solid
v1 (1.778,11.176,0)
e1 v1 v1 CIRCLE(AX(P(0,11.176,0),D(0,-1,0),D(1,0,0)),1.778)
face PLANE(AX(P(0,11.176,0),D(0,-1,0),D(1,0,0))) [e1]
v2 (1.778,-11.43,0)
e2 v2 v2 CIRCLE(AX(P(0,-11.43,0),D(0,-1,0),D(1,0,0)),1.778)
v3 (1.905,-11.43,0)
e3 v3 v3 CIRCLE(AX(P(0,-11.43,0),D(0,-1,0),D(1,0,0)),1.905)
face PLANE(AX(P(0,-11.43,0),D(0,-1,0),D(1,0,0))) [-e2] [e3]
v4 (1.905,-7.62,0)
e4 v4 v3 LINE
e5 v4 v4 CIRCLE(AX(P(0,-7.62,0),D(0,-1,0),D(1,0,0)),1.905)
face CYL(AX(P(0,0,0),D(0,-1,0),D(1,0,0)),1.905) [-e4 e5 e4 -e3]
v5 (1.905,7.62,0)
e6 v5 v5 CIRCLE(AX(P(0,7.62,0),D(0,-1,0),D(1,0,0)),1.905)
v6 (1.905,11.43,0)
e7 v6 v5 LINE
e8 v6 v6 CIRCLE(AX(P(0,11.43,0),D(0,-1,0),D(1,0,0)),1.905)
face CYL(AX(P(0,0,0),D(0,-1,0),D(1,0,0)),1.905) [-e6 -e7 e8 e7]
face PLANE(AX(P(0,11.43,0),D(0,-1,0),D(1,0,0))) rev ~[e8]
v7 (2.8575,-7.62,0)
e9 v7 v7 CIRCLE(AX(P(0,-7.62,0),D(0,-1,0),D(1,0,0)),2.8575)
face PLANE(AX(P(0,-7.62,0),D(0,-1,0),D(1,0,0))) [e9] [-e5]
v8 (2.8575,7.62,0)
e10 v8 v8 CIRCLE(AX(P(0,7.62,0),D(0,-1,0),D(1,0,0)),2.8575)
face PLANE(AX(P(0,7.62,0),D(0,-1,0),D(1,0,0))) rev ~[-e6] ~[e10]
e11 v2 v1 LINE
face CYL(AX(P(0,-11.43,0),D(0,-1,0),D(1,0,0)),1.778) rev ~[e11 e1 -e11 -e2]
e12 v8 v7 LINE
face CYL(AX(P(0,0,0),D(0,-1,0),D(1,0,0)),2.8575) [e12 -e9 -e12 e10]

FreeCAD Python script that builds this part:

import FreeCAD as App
import Part
import Sketcher
Q = App.Units.Quantity

doc = App.newDocument("Part")
body = doc.addObject("PartDesign::Body", "Body")

# Sketch on XZ plane
sketch1 = body.newObject("Sketcher::SketchObject", "Sketch")
sketch1.AttachmentSupport = (doc.getObject("XZ_Plane"), [""])
sketch1.MapMode = "FlatFace"
sketch1.addGeometry(Part.Circle(App.Vector(0, 0, 0), App.Vector(0, 0, 1), 2.9), False)
sketch1.addConstraint(Sketcher.Constraint("Coincident", 0, 3, -1, 1))
sketch1.addConstraint(Sketcher.Constraint("Diameter", 0, Q("0.225 in")))
pad1 = body.newObject("PartDesign::Pad", "Pad")
pad1.Profile = sketch1
pad1.Length = Q("0.6 in")
pad1.Midplane = True

# Sketch on XZ plane
sketch2 = body.newObject("Sketcher::SketchObject", "Sketch001")
sketch2.AttachmentSupport = (doc.getObject("XZ_Plane"), [""])
sketch2.MapMode = "FlatFace"
sketch2.addGeometry(Part.Circle(App.Vector(0, 0, 0), App.Vector(0, 0, 1), 1.9), False)
sketch2.addConstraint(Sketcher.Constraint("Coincident", 0, 3, -1, 1))
sketch2.addConstraint(Sketcher.Constraint("Diameter", 0, Q("0.15 in")))
pad2 = body.newObject("PartDesign::Pad", "Pad001")
pad2.Profile = sketch2
pad2.Length = Q("0.9 in")
pad2.Midplane = True

# Sketch on XZ plane
sketch3 = body.newObject("Sketcher::SketchObject", "Sketch002")
sketch3.AttachmentSupport = (doc.getObject("XZ_Plane"), [""])
sketch3.MapMode = "FlatFace"
sketch3.AttachmentOffset = App.Placement(App.Vector(0, 0, 0.45 * 25.4), App.Rotation())
sketch3.addGeometry(Part.Circle(App.Vector(0, 0, 0), App.Vector(0, 0, 1), 1.8), False)
sketch3.addConstraint(Sketcher.Constraint("Coincident", 0, 3, -1, 1))
sketch3.addConstraint(Sketcher.Constraint("Diameter", 0, Q("0.14 in")))
pocket1 = body.newObject("PartDesign::Pocket", "Pocket")
pocket1.Profile = sketch3
pocket1.Length = Q("0.89 in")

doc.recompute()
